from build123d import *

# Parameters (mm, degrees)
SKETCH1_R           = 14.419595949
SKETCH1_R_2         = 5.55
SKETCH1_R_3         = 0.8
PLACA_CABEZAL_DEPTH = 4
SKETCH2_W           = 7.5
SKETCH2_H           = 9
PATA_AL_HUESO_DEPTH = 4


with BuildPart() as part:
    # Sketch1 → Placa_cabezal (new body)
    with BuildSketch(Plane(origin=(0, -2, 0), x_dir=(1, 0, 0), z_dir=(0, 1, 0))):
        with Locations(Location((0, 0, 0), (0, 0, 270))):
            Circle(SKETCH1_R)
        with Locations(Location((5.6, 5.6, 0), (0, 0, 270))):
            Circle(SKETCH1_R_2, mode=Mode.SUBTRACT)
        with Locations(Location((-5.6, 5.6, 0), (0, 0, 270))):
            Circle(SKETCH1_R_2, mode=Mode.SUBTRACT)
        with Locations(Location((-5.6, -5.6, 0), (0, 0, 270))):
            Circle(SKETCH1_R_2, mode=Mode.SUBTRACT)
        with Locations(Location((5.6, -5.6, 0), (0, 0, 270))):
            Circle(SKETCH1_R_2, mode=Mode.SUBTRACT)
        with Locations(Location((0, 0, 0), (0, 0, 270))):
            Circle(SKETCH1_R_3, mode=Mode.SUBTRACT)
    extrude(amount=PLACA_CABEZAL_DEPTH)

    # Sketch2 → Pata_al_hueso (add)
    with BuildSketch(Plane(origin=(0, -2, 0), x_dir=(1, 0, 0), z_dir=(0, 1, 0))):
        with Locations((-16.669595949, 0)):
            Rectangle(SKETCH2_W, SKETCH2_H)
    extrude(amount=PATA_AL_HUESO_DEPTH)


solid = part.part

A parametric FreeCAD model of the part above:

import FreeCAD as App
import Part
import Sketcher
from FreeCAD import Vector


def add_polygon(sketch, points):
    """Adds a closed chain of lines whose ends are joined by coincident constraints."""
    first, n = sketch.GeometryCount, len(points)
    for a, b in zip(points, points[1:] + points[:1]):
        sketch.addGeometry(Part.LineSegment(App.Vector(*a, 0), App.Vector(*b, 0)), False)
    for i in range(n):
        sketch.addConstraint(Sketcher.Constraint("Coincident", first + i, 2, first + (i + 1) % n, 1))

doc = App.newDocument("Part")
body = doc.addObject("PartDesign::Body", "Body")

# Sketch on XZ plane
sketch1 = doc.addObject("Sketcher::SketchObject", "Sketch")
body.addObject(sketch1)
sketch1.AttachmentSupport = (doc.XZ_Plane, [""])
sketch1.MapMode = "FlatFace"
sketch1.AttachmentOffset = App.Placement(Vector(0, 0, 2), App.Rotation())
sketch1.addGeometry([
    Part.Circle(Vector(0, 0, 0), Vector(0, 0, 1), 14.4),  # 0
    Part.Circle(Vector(-5.6, -5.6, 0), Vector(0, 0, 1), 5.5),  # 1
    Part.Circle(Vector(-5.6, 5.6, 0), Vector(0, 0, 1), 5.5),  # 2
    Part.Circle(Vector(0, 0, 0), Vector(0, 0, 1), 0.8),  # 3
    Part.Circle(Vector(5.6, -5.6, 0), Vector(0, 0, 1), 5.5),  # 4
    Part.Circle(Vector(5.6, 5.6, 0), Vector(0, 0, 1), 5.5),  # 5
], False)
sketch1.addConstraint([
    Sketcher.Constraint("Coincident", 0, 3, -1, 1),
    Sketcher.Constraint("Coincident", 3, 3, -1, 1),
    Sketcher.Constraint("Equal", 1, 2),
    Sketcher.Constraint("Equal", 2, 4),
    Sketcher.Constraint("Equal", 4, 5),
    Sketcher.Constraint("Symmetric", 2, 3, 4, 3, -1, 1),
    Sketcher.Constraint("Symmetric", 1, 3, 5, 3, -1, 1),
    Sketcher.Constraint("Symmetric", 1, 3, 4, 3, -2),
    Sketcher.Constraint("Diameter", 1, 11.1),
    Sketcher.Constraint("Diameter", 3, 1.6),
    Sketcher.Constraint("DistanceX", 1, 3, -1, 1, 5.6),
    Sketcher.Constraint("DistanceY", 1, 3, -1, 1, 5.6),
    Sketcher.Constraint("Diameter", 0, 28.839192),
])
pad1 = doc.addObject("PartDesign::Pad", "Pad")
body.addObject(pad1)
pad1.Profile = sketch1
pad1.Length = 4
pad1.Reversed = True

# Sketch on XZ plane
sketch2 = doc.addObject("Sketcher::SketchObject", "Sketch001")
body.addObject(sketch2)
sketch2.AttachmentSupport = (doc.XZ_Plane, [""])
sketch2.MapMode = "FlatFace"
sketch2.AttachmentOffset = App.Placement(Vector(0, 0, 2), App.Rotation())
add_polygon(sketch2, [(-20, -4), (-20, 4), (-13, 4), (-13, -4)])  # lines 0-3
sketch2.addConstraint([
    Sketcher.Constraint("Vertical", 0),
    Sketcher.Constraint("Horizontal", 1),
    Sketcher.Constraint("Vertical", 2),
    Sketcher.Constraint("Horizontal", 3),
    Sketcher.Constraint("DistanceY", 0, 1, 0, 2, 9.0),
    Sketcher.Constraint("DistanceX", 1, 1, 1, 2, 7.5),
    Sketcher.Constraint("DistanceY", -1, 1, 0, 2, 4.5),
    Sketcher.Constraint("DistanceX", 0, 2, -1, 1, 20.419596),
])
pad2 = doc.addObject("PartDesign::Pad", "Pad001")
body.addObject(pad2)
pad2.Profile = sketch2
pad2.Length = 4
pad2.Reversed = True

doc.recompute()
